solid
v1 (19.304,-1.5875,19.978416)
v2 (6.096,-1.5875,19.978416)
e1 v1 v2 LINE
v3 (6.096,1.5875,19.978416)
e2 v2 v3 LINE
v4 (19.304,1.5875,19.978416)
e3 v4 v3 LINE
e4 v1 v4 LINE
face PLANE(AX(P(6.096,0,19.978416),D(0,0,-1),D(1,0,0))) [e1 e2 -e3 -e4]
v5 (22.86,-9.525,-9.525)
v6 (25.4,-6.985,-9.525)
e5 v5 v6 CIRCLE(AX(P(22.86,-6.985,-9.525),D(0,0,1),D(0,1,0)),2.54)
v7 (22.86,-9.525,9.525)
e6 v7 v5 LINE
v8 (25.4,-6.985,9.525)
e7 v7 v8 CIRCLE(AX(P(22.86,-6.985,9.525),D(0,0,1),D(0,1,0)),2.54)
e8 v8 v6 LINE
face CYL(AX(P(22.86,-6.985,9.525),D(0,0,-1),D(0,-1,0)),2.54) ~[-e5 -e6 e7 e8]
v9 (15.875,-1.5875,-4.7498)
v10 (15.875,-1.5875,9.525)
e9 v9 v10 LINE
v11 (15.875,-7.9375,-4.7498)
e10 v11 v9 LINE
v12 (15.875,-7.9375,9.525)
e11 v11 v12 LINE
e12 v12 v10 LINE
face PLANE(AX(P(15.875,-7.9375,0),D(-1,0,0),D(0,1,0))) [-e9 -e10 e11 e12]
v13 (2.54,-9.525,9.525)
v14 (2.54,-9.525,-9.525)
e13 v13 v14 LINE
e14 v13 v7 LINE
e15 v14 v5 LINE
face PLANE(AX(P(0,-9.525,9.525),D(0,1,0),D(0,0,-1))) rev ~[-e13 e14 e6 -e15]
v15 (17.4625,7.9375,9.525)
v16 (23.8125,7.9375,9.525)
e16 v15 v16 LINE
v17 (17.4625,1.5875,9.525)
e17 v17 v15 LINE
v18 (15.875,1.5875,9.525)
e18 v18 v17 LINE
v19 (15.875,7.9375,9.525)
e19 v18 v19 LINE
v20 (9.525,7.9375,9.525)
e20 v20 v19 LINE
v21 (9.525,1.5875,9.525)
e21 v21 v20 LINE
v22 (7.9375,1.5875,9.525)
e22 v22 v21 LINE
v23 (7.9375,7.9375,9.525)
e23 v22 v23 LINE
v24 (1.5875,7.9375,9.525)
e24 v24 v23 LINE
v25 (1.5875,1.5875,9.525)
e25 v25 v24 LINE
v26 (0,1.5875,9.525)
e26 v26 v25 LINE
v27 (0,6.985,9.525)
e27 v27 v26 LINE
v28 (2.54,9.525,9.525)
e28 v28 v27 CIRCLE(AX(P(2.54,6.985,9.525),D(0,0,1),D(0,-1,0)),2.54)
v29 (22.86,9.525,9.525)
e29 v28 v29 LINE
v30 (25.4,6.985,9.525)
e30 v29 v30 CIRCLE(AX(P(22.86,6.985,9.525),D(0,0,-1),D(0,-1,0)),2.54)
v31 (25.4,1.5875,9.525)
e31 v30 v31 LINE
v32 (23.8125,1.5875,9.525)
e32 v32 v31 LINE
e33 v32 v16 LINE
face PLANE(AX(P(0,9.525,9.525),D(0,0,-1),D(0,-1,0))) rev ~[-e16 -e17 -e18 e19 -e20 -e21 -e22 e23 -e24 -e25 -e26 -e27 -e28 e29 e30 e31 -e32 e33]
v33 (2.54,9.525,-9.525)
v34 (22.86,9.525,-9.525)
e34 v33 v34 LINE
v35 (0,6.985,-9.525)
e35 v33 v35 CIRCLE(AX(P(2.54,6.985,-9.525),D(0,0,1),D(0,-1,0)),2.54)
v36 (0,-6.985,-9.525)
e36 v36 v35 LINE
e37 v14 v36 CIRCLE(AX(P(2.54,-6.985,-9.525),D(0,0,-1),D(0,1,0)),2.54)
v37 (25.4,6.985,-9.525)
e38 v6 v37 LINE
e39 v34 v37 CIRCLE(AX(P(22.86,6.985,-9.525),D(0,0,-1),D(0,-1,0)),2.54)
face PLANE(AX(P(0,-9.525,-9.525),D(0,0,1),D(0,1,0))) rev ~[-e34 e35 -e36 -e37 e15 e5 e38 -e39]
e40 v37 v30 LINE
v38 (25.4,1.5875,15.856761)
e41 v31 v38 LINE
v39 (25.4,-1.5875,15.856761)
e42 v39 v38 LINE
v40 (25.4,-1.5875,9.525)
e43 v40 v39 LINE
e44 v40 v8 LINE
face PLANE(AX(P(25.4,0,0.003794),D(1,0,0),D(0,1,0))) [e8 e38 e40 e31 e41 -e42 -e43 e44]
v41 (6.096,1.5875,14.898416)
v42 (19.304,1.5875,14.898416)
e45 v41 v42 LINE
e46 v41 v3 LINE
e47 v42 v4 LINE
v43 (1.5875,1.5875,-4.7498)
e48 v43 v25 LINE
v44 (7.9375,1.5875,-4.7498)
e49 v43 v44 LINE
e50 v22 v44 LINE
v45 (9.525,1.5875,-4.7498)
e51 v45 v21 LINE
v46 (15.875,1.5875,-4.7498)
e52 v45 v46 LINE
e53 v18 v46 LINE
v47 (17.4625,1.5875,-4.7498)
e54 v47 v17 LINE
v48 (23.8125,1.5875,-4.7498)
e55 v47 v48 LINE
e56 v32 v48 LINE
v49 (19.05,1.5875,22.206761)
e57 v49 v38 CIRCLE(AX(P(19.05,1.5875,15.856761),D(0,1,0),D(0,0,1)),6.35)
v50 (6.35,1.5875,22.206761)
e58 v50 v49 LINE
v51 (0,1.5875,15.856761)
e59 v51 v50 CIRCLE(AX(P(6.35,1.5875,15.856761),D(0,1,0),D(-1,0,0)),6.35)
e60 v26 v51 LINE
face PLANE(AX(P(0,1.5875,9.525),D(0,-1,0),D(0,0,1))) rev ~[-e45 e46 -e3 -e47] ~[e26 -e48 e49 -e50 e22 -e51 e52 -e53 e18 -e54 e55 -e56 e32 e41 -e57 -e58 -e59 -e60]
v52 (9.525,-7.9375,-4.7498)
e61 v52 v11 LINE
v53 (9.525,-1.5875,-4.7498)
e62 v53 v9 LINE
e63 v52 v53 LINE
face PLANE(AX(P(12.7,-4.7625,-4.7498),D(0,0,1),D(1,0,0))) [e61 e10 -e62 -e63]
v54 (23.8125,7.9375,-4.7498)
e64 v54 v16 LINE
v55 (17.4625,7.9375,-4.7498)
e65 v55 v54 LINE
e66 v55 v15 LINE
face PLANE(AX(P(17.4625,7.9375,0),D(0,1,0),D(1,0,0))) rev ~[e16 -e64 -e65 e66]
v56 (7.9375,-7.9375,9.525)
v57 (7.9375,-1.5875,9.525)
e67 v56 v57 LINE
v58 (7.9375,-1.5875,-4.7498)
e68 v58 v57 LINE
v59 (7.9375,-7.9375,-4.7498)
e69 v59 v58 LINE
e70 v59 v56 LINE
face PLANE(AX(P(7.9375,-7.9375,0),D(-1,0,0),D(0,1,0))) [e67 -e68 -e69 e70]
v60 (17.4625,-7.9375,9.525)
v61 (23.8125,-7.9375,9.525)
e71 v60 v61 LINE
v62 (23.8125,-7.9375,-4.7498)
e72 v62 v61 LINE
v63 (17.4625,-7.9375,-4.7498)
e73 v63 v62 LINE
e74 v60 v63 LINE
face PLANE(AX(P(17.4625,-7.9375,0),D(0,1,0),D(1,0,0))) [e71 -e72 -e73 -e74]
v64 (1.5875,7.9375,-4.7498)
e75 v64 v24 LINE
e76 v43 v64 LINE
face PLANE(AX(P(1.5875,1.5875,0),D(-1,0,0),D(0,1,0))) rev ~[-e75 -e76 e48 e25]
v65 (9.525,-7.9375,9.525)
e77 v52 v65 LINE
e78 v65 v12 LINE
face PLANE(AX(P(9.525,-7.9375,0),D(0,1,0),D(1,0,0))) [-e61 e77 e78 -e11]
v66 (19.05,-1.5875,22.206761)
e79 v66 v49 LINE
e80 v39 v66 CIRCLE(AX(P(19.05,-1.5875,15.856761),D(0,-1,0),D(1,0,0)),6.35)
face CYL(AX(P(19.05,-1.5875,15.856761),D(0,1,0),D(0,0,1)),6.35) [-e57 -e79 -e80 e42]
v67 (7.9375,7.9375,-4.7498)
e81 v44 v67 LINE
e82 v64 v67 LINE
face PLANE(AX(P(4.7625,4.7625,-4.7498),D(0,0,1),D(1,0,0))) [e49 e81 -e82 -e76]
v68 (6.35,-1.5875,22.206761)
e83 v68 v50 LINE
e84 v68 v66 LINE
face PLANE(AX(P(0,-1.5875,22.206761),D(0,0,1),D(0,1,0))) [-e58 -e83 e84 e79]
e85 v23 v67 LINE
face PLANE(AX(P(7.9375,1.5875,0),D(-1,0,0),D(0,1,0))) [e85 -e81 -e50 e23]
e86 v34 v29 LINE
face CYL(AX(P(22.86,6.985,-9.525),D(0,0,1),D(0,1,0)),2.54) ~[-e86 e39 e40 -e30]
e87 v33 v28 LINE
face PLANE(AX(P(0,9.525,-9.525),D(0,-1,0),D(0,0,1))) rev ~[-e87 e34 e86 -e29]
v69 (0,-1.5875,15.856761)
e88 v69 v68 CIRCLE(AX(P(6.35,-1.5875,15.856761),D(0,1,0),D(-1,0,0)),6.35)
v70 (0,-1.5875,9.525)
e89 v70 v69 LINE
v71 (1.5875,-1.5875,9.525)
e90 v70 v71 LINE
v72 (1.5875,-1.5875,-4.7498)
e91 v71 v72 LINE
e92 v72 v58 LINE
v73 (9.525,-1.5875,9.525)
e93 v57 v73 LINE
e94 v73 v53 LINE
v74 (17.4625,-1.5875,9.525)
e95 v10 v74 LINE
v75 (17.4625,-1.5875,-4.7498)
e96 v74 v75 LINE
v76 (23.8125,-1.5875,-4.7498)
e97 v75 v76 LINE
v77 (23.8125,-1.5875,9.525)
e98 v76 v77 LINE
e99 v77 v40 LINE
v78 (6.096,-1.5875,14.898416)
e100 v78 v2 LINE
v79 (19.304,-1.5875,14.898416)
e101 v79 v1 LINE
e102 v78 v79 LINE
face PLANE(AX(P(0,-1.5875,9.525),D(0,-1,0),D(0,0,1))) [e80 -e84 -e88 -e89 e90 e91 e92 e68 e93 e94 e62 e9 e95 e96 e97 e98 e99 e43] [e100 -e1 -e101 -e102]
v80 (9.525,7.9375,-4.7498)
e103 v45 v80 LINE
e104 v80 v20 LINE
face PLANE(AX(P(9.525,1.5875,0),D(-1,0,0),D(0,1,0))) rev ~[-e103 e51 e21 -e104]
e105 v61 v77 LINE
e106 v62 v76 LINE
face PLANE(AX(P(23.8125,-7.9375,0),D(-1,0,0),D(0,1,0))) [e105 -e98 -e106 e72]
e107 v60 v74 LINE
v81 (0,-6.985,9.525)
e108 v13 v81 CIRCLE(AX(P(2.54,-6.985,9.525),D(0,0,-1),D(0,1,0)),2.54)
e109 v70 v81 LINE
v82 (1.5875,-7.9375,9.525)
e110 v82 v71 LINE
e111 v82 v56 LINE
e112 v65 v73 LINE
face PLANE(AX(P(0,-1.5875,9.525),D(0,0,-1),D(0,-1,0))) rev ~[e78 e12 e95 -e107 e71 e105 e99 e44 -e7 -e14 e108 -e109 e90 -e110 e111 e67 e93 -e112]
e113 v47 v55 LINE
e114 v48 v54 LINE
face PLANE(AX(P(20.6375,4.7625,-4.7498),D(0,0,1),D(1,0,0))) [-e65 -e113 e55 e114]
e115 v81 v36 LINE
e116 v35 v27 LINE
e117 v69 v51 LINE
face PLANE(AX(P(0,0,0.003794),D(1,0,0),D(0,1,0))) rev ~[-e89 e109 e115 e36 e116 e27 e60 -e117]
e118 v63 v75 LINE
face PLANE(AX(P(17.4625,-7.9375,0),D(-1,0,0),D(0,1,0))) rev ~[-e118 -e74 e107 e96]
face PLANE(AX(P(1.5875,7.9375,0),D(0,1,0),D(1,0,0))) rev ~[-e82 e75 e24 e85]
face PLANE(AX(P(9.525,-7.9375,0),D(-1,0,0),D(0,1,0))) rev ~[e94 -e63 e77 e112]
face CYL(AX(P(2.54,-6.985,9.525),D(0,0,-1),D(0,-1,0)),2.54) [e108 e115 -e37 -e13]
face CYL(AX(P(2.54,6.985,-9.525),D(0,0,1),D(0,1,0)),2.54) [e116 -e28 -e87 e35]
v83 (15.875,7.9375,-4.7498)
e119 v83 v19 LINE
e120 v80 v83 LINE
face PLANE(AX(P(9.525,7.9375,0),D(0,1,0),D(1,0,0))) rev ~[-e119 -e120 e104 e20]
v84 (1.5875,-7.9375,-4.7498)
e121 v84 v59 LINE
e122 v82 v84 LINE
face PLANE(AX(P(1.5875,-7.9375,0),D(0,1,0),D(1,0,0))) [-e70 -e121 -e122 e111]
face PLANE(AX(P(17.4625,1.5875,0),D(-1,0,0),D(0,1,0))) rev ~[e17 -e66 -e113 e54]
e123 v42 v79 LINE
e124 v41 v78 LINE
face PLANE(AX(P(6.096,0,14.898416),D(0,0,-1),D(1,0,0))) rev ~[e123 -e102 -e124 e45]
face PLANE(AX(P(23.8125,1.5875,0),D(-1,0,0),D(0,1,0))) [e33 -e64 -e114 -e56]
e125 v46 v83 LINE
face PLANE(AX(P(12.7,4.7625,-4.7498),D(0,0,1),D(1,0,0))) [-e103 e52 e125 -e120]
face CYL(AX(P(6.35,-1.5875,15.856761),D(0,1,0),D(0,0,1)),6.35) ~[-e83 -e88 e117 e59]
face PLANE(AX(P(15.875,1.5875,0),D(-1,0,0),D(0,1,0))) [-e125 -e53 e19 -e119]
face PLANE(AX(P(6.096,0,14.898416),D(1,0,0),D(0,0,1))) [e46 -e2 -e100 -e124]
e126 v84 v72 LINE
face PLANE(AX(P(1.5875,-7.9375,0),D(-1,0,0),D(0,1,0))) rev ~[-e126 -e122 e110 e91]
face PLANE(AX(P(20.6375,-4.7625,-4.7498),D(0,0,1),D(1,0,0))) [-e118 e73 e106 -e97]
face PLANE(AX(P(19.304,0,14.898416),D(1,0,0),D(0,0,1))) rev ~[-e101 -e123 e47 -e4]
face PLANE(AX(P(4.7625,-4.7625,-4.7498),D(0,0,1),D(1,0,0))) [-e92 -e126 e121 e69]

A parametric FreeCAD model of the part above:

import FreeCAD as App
import Part
import Sketcher

V = App.Vector
Q = App.Units.Quantity


def edges_at(feature, points):
    """Names of the edges that pass closest to the given points."""
    edges = feature.Shape.Edges
    near = lambda p: min(range(len(edges)), key=lambda i: edges[i].distToShape(Part.Vertex(*p))[0])
    return sorted({f"Edge{near(p) + 1}" for p in points})

doc = App.newDocument("Part")
body = doc.addObject("PartDesign::Body", "Body")

# Sketch on YZ plane
sketch1 = body.newObject("Sketcher::SketchObject", "Sketch")
sketch1.AttachmentSupport = (doc.getObject("YZ_Plane"), [""])
sketch1.MapMode = "FlatFace"
sketch1.addGeometry(Part.LineSegment(V(9.5, -9.5, 0), V(9.5, 9.5, 0)), False)
sketch1.addGeometry(Part.LineSegment(V(9.5, 9.5, 0), V(1.6, 9.5, 0)), False)
sketch1.addGeometry(Part.LineSegment(V(1.6, 9.5, 0), V(1.6, 22.2, 0)), False)
sketch1.addGeometry(Part.LineSegment(V(1.6, 22.2, 0), V(-1.6, 22.2, 0)), False)
sketch1.addGeometry(Part.LineSegment(V(-1.6, 22.2, 0), V(-1.6, 9.5, 0)), False)
sketch1.addGeometry(Part.LineSegment(V(-1.6, 9.5, 0), V(-9.5, 9.5, 0)), False)
sketch1.addGeometry(Part.LineSegment(V(-9.5, 9.5, 0), V(-9.5, -9.5, 0)), False)
sketch1.addGeometry(Part.LineSegment(V(-9.5, -9.5, 0), V(9.5, -9.5, 0)), False)
sketch1.addConstraint(Sketcher.Constraint("Coincident", 0, 2, 1, 1))
sketch1.addConstraint(Sketcher.Constraint("Coincident", 1, 2, 2, 1))
sketch1.addConstraint(Sketcher.Constraint("Coincident", 2, 2, 3, 1))
sketch1.addConstraint(Sketcher.Constraint("Coincident", 3, 2, 4, 1))
sketch1.addConstraint(Sketcher.Constraint("Coincident", 4, 2, 5, 1))
sketch1.addConstraint(Sketcher.Constraint("Coincident", 5, 2, 6, 1))
sketch1.addConstraint(Sketcher.Constraint("Coincident", 6, 2, 7, 1))
sketch1.addConstraint(Sketcher.Constraint("Coincident", 7, 2, 0, 1))
sketch1.addConstraint(Sketcher.Constraint("Vertical", 0))
sketch1.addConstraint(Sketcher.Constraint("Horizontal", 1))
sketch1.addConstraint(Sketcher.Constraint("Vertical", 2))
sketch1.addConstraint(Sketcher.Constraint("Horizontal", 3))
sketch1.addConstraint(Sketcher.Constraint("Vertical", 4))
sketch1.addConstraint(Sketcher.Constraint("Horizontal", 5))
sketch1.addConstraint(Sketcher.Constraint("Vertical", 6))
sketch1.addConstraint(Sketcher.Constraint("Horizontal", 7))
sketch1.addConstraint(Sketcher.Constraint("Symmetric", 0, 2, 6, 2, -1, 1))
sketch1.addConstraint(Sketcher.Constraint("Symmetric", 1, 2, 4, 2, -2))
sketch1.addConstraint(Sketcher.Constraint("Equal", 7, 0))
sketch1.addConstraint(Sketcher.Constraint("DistanceX", 7, 1, 7, 2, Q("0.75 in")))
sketch1.addConstraint(Sketcher.Constraint("DistanceX", 1, 2, 1, 1, Q("0.3125 in")))
sketch1.addConstraint(Sketcher.Constraint("DistanceY", 2, 1, 2, 2, 12.681761))
pad1 = body.newObject("PartDesign::Pad", "Pad")
pad1.Profile = sketch1
pad1.Length = Q("1 in")
doc.recompute()

fillet = body.newObject("PartDesign::Fillet", "Fillet")
fillet.Base = (pad1, edges_at(pad1, [(25.4, 0, 22.207), (0, 0, 22.207)]))
fillet.Radius = Q("0.25 in")

# Sketch on XZ plane
sketch2 = body.newObject("Sketcher::SketchObject", "Sketch001")
sketch2.AttachmentSupport = (doc.getObject("XZ_Plane"), [""])
sketch2.MapMode = "FlatFace"
sketch2.addGeometry(Part.LineSegment(V(6, 20, 0), V(6, 15, 0)), False)
sketch2.addGeometry(Part.LineSegment(V(6, 15, 0), V(19, 15, 0)), False)
sketch2.addGeometry(Part.LineSegment(V(19, 15, 0), V(19, 20, 0)), False)
sketch2.addGeometry(Part.LineSegment(V(19, 20, 0), V(6, 20, 0)), False)
sketch2.addConstraint(Sketcher.Constraint("Coincident", 0, 2, 1, 1))
sketch2.addConstraint(Sketcher.Constraint("Coincident", 1, 2, 2, 1))
sketch2.addConstraint(Sketcher.Constraint("Coincident", 2, 2, 3, 1))
sketch2.addConstraint(Sketcher.Constraint("Coincident", 3, 2, 0, 1))
sketch2.addConstraint(Sketcher.Constraint("Vertical", 0))
sketch2.addConstraint(Sketcher.Constraint("Horizontal", 1))
sketch2.addConstraint(Sketcher.Constraint("Vertical", 2))
sketch2.addConstraint(Sketcher.Constraint("Horizontal", 3))
sketch2.addConstraint(Sketcher.Constraint("DistanceY", 0, 2, 0, 1, Q("0.2 in")))
sketch2.addConstraint(Sketcher.Constraint("DistanceX", 1, 1, 1, 2, Q("0.52 in")))
sketch2.addConstraint(Sketcher.Constraint("DistanceX", -1, 1, 0, 2, Q("0.24 in")))
sketch2.addConstraint(Sketcher.Constraint("DistanceY", -1, 1, 0, 2, 14.898416))
pocket1 = body.newObject("PartDesign::Pocket", "Pocket")
pocket1.Profile = sketch2
pocket1.Length = Q("1 in")
pocket1.Midplane = True

# Sketch on XY plane
sketch3 = body.newObject("Sketcher::SketchObject", "Sketch002")
sketch3.AttachmentSupport = (doc.getObject("XY_Plane"), [""])
sketch3.MapMode = "FlatFace"
sketch3.addGeometry(Part.LineSegment(V(2, 8, 0), V(2, 2, 0)), False)
sketch3.addGeometry(Part.LineSegment(V(2, 2, 0), V(8, 2, 0)), False)
sketch3.addGeometry(Part.LineSegment(V(8, 2, 0), V(8, 8, 0)), False)
sketch3.addGeometry(Part.LineSegment(V(8, 8, 0), V(2, 8, 0)), False)
sketch3.addGeometry(Part.LineSegment(V(17, 8, 0), V(17, 2, 0)), False)
sketch3.addGeometry(Part.LineSegment(V(17, 2, 0), V(24, 2, 0)), False)
sketch3.addGeometry(Part.LineSegment(V(24, 2, 0), V(24, 8, 0)), False)
sketch3.addGeometry(Part.LineSegment(V(24, 8, 0), V(17, 8, 0)), False)
sketch3.addGeometry(Part.LineSegment(V(10, 8, 0), V(10, 2, 0)), False)
sketch3.addGeometry(Part.LineSegment(V(10, 2, 0), V(16, 2, 0)), False)
sketch3.addGeometry(Part.LineSegment(V(16, 2, 0), V(16, 8, 0)), False)
sketch3.addGeometry(Part.LineSegment(V(16, 8, 0), V(10, 8, 0)), False)
sketch3.addGeometry(Part.LineSegment(V(2, -2, 0), V(2, -8, 0)), False)
sketch3.addGeometry(Part.LineSegment(V(2, -8, 0), V(8, -8, 0)), False)
sketch3.addGeometry(Part.LineSegment(V(8, -8, 0), V(8, -2, 0)), False)
sketch3.addGeometry(Part.LineSegment(V(8, -2, 0), V(2, -2, 0)), False)
sketch3.addGeometry(Part.LineSegment(V(10, -2, 0), V(10, -8, 0)), False)
sketch3.addGeometry(Part.LineSegment(V(10, -8, 0), V(16, -8, 0)), False)
sketch3.addGeometry(Part.LineSegment(V(16, -8, 0), V(16, -2, 0)), False)
sketch3.addGeometry(Part.LineSegment(V(16, -2, 0), V(10, -2, 0)), False)
sketch3.addGeometry(Part.LineSegment(V(17, -2, 0), V(17, -8, 0)), False)
sketch3.addGeometry(Part.LineSegment(V(17, -8, 0), V(24, -8, 0)), False)
sketch3.addGeometry(Part.LineSegment(V(24, -8, 0), V(24, -2, 0)), False)
sketch3.addGeometry(Part.LineSegment(V(24, -2, 0), V(17, -2, 0)), False)
sketch3.addConstraint(Sketcher.Constraint("Coincident", 0, 2, 1, 1))
sketch3.addConstraint(Sketcher.Constraint("Coincident", 1, 2, 2, 1))
sketch3.addConstraint(Sketcher.Constraint("Coincident", 2, 2, 3, 1))
sketch3.addConstraint(Sketcher.Constraint("Coincident", 3, 2, 0, 1))
sketch3.addConstraint(Sketcher.Constraint("Coincident", 4, 2, 5, 1))
sketch3.addConstraint(Sketcher.Constraint("Coincident", 5, 2, 6, 1))
sketch3.addConstraint(Sketcher.Constraint("Coincident", 6, 2, 7, 1))
sketch3.addConstraint(Sketcher.Constraint("Coincident", 7, 2, 4, 1))
sketch3.addConstraint(Sketcher.Constraint("Coincident", 8, 2, 9, 1))
sketch3.addConstraint(Sketcher.Constraint("Coincident", 9, 2, 10, 1))
sketch3.addConstraint(Sketcher.Constraint("Coincident", 10, 2, 11, 1))
sketch3.addConstraint(Sketcher.Constraint("Coincident", 11, 2, 8, 1))
sketch3.addConstraint(Sketcher.Constraint("Coincident", 12, 2, 13, 1))
sketch3.addConstraint(Sketcher.Constraint("Coincident", 13, 2, 14, 1))
sketch3.addConstraint(Sketcher.Constraint("Coincident", 14, 2, 15, 1))
sketch3.addConstraint(Sketcher.Constraint("Coincident", 15, 2, 12, 1))
sketch3.addConstraint(Sketcher.Constraint("Coincident", 16, 2, 17, 1))
sketch3.addConstraint(Sketcher.Constraint("Coincident", 17, 2, 18, 1))
sketch3.addConstraint(Sketcher.Constraint("Coincident", 18, 2, 19, 1))
sketch3.addConstraint(Sketcher.Constraint("Coincident", 19, 2, 16, 1))
sketch3.addConstraint(Sketcher.Constraint("Coincident", 20, 2, 21, 1))
sketch3.addConstraint(Sketcher.Constraint("Coincident", 21, 2, 22, 1))
sketch3.addConstraint(Sketcher.Constraint("Coincident", 22, 2, 23, 1))
sketch3.addConstraint(Sketcher.Constraint("Coincident", 23, 2, 20, 1))
sketch3.addConstraint(Sketcher.Constraint("Vertical", 0))
sketch3.addConstraint(Sketcher.Constraint("Horizontal", 1))
sketch3.addConstraint(Sketcher.Constraint("Vertical", 2))
sketch3.addConstraint(Sketcher.Constraint("Horizontal", 3))
sketch3.addConstraint(Sketcher.Constraint("Vertical", 4))
sketch3.addConstraint(Sketcher.Constraint("Horizontal", 5))
sketch3.addConstraint(Sketcher.Constraint("Vertical", 6))
sketch3.addConstraint(Sketcher.Constraint("Horizontal", 7))
sketch3.addConstraint(Sketcher.Constraint("Vertical", 8))
sketch3.addConstraint(Sketcher.Constraint("Horizontal", 9))
sketch3.addConstraint(Sketcher.Constraint("Vertical", 10))
sketch3.addConstraint(Sketcher.Constraint("Horizontal", 11))
sketch3.addConstraint(Sketcher.Constraint("Vertical", 12))
sketch3.addConstraint(Sketcher.Constraint("Horizontal", 13))
sketch3.addConstraint(Sketcher.Constraint("Vertical", 14))
sketch3.addConstraint(Sketcher.Constraint("Horizontal", 15))
sketch3.addConstraint(Sketcher.Constraint("Vertical", 16))
sketch3.addConstraint(Sketcher.Constraint("Horizontal", 17))
sketch3.addConstraint(Sketcher.Constraint("Vertical", 18))
sketch3.addConstraint(Sketcher.Constraint("Horizontal", 19))
sketch3.addConstraint(Sketcher.Constraint("Vertical", 20))
sketch3.addConstraint(Sketcher.Constraint("Horizontal", 21))
sketch3.addConstraint(Sketcher.Constraint("Vertical", 22))
sketch3.addConstraint(Sketcher.Constraint("Horizontal", 23))
sketch3.addConstraint(Sketcher.Constraint("Symmetric", 3, 2, 12, 2, -1))
sketch3.addConstraint(Sketcher.Constraint("Symmetric", 1, 2, 14, 2, -1))
sketch3.addConstraint(Sketcher.Constraint("Symmetric", 11, 2, 16, 2, -1))
sketch3.addConstraint(Sketcher.Constraint("Symmetric", 9, 2, 18, 2, -1))
sketch3.addConstraint(Sketcher.Constraint("Symmetric", 7, 2, 20, 2, -1))
sketch3.addConstraint(Sketcher.Constraint("Symmetric", 5, 2, 22, 2, -1))
sketch3.addConstraint(Sketcher.Constraint("Horizontal", 1, 2, 4, 2))
sketch3.addConstraint(Sketcher.Constraint("Horizontal", 3, 2, 6, 2))
sketch3.addConstraint(Sketcher.Constraint("Horizontal", 5, 2, 8, 2))
sketch3.addConstraint(Sketcher.Constraint("Horizontal", 7, 2, 10, 2))
sketch3.addConstraint(Sketcher.Constraint("Equal", 3, 5))
sketch3.addConstraint(Sketcher.Constraint("Equal", 7, 9))
sketch3.addConstraint(Sketcher.Constraint("Equal", 23, 0))
sketch3.addConstraint(Sketcher.Constraint("DistanceX", 1, 1, 1, 2, Q("0.25 in")))
sketch3.addConstraint(Sketcher.Constraint("DistanceX", -1, 1, 0, 2, Q("0.0625 in")))
sketch3.addConstraint(Sketcher.Constraint("DistanceY", -1, 1, 0, 2, Q("0.0625 in")))
sketch3.addConstraint(Sketcher.Constraint("DistanceX", -1, 1, 4, 2, Q("0.6875 in")))
sketch3.addConstraint(Sketcher.Constraint("DistanceX", -1, 1, 8, 2, Q("0.375 in")))
pocket2 = body.newObject("PartDesign::Pocket", "Pocket001")
pocket2.Profile = sketch3
pocket2.Type = "TwoLengths"
pocket2.Length = Q("0.187 in")
pocket2.Length2 = Q("2 in")
doc.recompute()

fillet2 = body.newObject("PartDesign::Fillet", "Fillet001")
fillet2.Base = (pocket2, edges_at(pocket2, [
    (25.4, -9.525, 0),
    (0, -9.525, 0),
    (25.4, 9.525, 0),
    (0, 9.525, 0),
]))
fillet2.Radius = Q("0.1 in")

doc.recompute()
